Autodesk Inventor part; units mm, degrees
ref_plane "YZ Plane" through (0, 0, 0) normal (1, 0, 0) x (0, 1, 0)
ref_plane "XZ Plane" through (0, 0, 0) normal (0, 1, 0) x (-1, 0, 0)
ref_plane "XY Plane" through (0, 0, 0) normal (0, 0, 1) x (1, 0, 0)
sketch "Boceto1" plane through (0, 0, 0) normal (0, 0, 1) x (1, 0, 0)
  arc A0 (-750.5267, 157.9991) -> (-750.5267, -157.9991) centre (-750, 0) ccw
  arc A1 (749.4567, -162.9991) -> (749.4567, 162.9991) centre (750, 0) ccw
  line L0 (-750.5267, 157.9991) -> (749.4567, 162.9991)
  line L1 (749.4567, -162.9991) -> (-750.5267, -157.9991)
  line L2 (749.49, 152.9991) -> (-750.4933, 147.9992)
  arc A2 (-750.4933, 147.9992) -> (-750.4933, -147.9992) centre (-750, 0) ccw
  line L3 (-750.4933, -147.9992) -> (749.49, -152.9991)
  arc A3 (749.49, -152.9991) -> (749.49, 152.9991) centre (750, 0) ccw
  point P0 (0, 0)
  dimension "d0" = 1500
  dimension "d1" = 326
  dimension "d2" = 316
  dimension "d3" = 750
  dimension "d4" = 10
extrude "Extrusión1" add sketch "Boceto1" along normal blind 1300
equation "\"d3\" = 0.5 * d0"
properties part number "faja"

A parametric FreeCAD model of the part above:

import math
import FreeCAD as App
import Part
import Sketcher

V = App.Vector

doc = App.newDocument("Part")
params = doc.addObject("Spreadsheet::Sheet", "Params")
for row, (alias, value) in enumerate([
    ("sketch1_radius", "158 mm"),
    ("sketch1_radius2", "163 mm"),
    ("sketch1_radius3", "153 mm"),
    ("pad1_length", "1300 mm"),
], start=1):
    params.set(f"A{row}", alias)
    params.set(f"B{row}", "=" + value)
    params.setAlias(f"B{row}", alias)

body = doc.addObject("PartDesign::Body", "Body")

sketch1 = doc.addObject("Sketcher::SketchObject", "Sketch")
body.addObject(sketch1)
sketch1.AttachmentSupport = (doc.XY_Plane, [""])
sketch1.MapMode = "FlatFace"
sketch1.addGeometry(Part.LineSegment(V(749, 163, 0), V(-751, 158, 0)), False)
sketch1.addGeometry(Part.ArcOfCircle(Part.Circle(V(-750, 0, 0), V(0, 0, 1), 158), math.radians(90), math.radians(270)), False)
sketch1.addGeometry(Part.LineSegment(V(-751, -158, 0), V(749, -163, 0)), False)
sketch1.addGeometry(Part.ArcOfCircle(Part.Circle(V(750, 0, 0), V(0, 0, 1), 163), math.radians(-90), math.radians(90)), False)
sketch1.addGeometry(Part.LineSegment(V(-750, 148, 0), V(749, 153, 0)), False)
sketch1.addGeometry(Part.ArcOfCircle(Part.Circle(V(750, 0, 0), V(0, 0, 1), 153), math.radians(-90), math.radians(90)), False)
sketch1.addGeometry(Part.LineSegment(V(749, -153, 0), V(-750, -148, 0)), False)
sketch1.addGeometry(Part.ArcOfCircle(Part.Circle(V(-750, 0, 0), V(0, 0, 1), 148), math.radians(90), math.radians(270)), False)
sketch1.addConstraint(Sketcher.Constraint("Tangent", 0, 2, 1, 1))
sketch1.addConstraint(Sketcher.Constraint("Tangent", 1, 2, 2, 1))
sketch1.addConstraint(Sketcher.Constraint("Tangent", 2, 2, 3, 1))
sketch1.addConstraint(Sketcher.Constraint("Tangent", 3, 2, 0, 1))
sketch1.addConstraint(Sketcher.Constraint("Tangent", 4, 2, 5, 2))
sketch1.addConstraint(Sketcher.Constraint("Tangent", 5, 1, 6, 1))
sketch1.addConstraint(Sketcher.Constraint("Tangent", 6, 2, 7, 2))
sketch1.addConstraint(Sketcher.Constraint("Tangent", 7, 1, 4, 1))
sketch1.addConstraint(Sketcher.Constraint("Coincident", 5, 3, 3, 3))
sketch1.addConstraint(Sketcher.Constraint("Coincident", 7, 3, 1, 3))
sketch1.addConstraint(Sketcher.Constraint("Symmetric", 1, 3, 3, 3, -1, 1))
sketch1.addConstraint(Sketcher.Constraint("PointOnObject", 1, 3, -1))
sketch1.addConstraint(Sketcher.Constraint("Parallel", 0, 4))
sketch1.addConstraint(Sketcher.Constraint("Radius", 1, 158.0))
sketch1.addConstraint(Sketcher.Constraint("Radius", 3, 163.0))
sketch1.addConstraint(Sketcher.Constraint("DistanceX", 1, 3, -1, 1, 750.0))
sketch1.addConstraint(Sketcher.Constraint("Radius", 5, 153.0))
sketch1.setExpression("Constraints[13]", "Params.sketch1_radius")
sketch1.setExpression("Constraints[14]", "Params.sketch1_radius2")
sketch1.setExpression("Constraints[16]", "Params.sketch1_radius3")
pad1 = doc.addObject("PartDesign::Pad", "Pad")
body.addObject(pad1)
pad1.Profile = sketch1
pad1.setExpression("Length", "Params.pad1_length")

doc.recompute()
